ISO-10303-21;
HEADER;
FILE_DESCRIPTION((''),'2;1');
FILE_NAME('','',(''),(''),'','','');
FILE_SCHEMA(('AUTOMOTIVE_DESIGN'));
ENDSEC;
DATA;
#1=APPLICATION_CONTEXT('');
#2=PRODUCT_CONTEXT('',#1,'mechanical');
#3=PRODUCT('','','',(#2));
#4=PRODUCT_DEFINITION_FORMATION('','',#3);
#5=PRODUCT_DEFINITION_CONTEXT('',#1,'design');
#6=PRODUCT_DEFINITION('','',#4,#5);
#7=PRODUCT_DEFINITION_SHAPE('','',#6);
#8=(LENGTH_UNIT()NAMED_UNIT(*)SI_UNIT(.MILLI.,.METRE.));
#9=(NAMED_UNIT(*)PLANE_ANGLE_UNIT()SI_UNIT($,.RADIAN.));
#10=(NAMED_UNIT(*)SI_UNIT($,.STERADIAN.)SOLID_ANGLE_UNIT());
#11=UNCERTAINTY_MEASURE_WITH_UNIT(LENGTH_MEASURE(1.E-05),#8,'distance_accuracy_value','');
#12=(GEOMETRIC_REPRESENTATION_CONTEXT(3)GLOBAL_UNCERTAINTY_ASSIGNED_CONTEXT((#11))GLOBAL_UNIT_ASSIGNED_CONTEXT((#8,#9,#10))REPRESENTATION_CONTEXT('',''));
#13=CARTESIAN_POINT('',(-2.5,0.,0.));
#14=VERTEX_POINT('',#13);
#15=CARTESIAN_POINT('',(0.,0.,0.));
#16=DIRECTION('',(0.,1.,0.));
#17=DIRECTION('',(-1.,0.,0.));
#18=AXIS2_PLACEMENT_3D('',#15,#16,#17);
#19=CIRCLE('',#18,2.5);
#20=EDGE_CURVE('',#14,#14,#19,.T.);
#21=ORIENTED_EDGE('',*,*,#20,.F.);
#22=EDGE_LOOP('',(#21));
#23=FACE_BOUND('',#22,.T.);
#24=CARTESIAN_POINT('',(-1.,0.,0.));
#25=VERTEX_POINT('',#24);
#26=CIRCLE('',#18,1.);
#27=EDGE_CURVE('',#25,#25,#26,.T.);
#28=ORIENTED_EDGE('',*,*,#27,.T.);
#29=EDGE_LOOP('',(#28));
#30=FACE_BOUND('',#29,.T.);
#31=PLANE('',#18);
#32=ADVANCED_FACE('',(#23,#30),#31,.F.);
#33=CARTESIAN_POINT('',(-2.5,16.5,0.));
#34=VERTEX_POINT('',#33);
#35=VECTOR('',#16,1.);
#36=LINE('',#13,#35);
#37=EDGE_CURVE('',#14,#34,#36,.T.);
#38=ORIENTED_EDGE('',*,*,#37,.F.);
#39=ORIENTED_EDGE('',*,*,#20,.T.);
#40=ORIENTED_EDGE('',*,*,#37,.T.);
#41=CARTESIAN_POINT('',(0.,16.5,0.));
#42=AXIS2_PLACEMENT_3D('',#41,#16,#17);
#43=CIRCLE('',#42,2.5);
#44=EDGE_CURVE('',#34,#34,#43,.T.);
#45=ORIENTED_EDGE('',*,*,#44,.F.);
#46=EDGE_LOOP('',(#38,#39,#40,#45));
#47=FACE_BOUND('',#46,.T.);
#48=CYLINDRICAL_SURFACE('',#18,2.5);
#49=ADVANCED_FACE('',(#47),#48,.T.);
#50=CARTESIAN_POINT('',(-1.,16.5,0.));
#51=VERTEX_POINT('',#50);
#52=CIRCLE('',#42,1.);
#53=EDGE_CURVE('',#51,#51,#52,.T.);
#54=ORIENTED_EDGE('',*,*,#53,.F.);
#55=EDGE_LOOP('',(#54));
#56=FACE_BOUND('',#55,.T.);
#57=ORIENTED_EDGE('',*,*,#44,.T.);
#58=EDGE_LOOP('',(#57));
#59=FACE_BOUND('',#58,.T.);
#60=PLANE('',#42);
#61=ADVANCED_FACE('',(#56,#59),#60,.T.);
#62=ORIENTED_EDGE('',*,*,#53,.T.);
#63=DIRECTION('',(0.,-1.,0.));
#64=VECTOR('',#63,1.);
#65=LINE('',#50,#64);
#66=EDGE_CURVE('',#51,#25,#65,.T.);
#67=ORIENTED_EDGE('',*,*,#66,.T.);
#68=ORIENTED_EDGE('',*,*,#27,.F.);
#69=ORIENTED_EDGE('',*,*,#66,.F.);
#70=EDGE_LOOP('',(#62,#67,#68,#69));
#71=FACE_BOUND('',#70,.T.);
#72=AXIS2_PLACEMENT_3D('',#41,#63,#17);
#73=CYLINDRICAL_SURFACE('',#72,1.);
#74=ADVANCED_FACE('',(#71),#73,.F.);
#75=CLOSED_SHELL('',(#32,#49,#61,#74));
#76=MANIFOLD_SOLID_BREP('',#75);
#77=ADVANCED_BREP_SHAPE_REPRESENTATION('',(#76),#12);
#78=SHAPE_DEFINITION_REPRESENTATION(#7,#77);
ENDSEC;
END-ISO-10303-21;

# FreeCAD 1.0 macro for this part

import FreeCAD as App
import Part
import Sketcher
from FreeCAD import Vector


def add_polygon(sketch, points):
    """Adds a closed chain of lines whose ends are joined by coincident constraints."""
    first, n = sketch.GeometryCount, len(points)
    for a, b in zip(points, points[1:] + points[:1]):
        sketch.addGeometry(Part.LineSegment(App.Vector(*a, 0), App.Vector(*b, 0)), False)
    for i in range(n):
        sketch.addConstraint(Sketcher.Constraint("Coincident", first + i, 2, first + (i + 1) % n, 1))

doc = App.newDocument("Part")
body = doc.addObject("PartDesign::Body", "Body")

# Sketch on XY plane
sketch1 = body.newObject("Sketcher::SketchObject", "Sketch")
sketch1.AttachmentSupport = (doc.getObject("XY_Plane"), [""])
sketch1.MapMode = "FlatFace"
add_polygon(sketch1, [(-2.5, 0), (-1, 0), (-1, 16.5), (-2.5, 16.5)])  # lines 0-3
sketch1.addConstraint([
    Sketcher.Constraint("Horizontal", 0),
    Sketcher.Constraint("Vertical", 1),
    Sketcher.Constraint("Horizontal", 2),
    Sketcher.Constraint("Vertical", 3),
    Sketcher.Constraint("PointOnObject", 0, 2, -1),
    Sketcher.Constraint("DistanceX", 0, 1, 0, 2, 1.5),
    Sketcher.Constraint("DistanceY", 1, 1, 1, 2, 16.5),
    Sketcher.Constraint("DistanceX", 0, 2, -1, 1, 1.0),
])
revolution = body.newObject("PartDesign::Revolution", "Revolution")
revolution.Profile = sketch1
revolution.ReferenceAxis = (sketch1, ["V_Axis"])
revolution.Angle = 360

doc.recompute()
